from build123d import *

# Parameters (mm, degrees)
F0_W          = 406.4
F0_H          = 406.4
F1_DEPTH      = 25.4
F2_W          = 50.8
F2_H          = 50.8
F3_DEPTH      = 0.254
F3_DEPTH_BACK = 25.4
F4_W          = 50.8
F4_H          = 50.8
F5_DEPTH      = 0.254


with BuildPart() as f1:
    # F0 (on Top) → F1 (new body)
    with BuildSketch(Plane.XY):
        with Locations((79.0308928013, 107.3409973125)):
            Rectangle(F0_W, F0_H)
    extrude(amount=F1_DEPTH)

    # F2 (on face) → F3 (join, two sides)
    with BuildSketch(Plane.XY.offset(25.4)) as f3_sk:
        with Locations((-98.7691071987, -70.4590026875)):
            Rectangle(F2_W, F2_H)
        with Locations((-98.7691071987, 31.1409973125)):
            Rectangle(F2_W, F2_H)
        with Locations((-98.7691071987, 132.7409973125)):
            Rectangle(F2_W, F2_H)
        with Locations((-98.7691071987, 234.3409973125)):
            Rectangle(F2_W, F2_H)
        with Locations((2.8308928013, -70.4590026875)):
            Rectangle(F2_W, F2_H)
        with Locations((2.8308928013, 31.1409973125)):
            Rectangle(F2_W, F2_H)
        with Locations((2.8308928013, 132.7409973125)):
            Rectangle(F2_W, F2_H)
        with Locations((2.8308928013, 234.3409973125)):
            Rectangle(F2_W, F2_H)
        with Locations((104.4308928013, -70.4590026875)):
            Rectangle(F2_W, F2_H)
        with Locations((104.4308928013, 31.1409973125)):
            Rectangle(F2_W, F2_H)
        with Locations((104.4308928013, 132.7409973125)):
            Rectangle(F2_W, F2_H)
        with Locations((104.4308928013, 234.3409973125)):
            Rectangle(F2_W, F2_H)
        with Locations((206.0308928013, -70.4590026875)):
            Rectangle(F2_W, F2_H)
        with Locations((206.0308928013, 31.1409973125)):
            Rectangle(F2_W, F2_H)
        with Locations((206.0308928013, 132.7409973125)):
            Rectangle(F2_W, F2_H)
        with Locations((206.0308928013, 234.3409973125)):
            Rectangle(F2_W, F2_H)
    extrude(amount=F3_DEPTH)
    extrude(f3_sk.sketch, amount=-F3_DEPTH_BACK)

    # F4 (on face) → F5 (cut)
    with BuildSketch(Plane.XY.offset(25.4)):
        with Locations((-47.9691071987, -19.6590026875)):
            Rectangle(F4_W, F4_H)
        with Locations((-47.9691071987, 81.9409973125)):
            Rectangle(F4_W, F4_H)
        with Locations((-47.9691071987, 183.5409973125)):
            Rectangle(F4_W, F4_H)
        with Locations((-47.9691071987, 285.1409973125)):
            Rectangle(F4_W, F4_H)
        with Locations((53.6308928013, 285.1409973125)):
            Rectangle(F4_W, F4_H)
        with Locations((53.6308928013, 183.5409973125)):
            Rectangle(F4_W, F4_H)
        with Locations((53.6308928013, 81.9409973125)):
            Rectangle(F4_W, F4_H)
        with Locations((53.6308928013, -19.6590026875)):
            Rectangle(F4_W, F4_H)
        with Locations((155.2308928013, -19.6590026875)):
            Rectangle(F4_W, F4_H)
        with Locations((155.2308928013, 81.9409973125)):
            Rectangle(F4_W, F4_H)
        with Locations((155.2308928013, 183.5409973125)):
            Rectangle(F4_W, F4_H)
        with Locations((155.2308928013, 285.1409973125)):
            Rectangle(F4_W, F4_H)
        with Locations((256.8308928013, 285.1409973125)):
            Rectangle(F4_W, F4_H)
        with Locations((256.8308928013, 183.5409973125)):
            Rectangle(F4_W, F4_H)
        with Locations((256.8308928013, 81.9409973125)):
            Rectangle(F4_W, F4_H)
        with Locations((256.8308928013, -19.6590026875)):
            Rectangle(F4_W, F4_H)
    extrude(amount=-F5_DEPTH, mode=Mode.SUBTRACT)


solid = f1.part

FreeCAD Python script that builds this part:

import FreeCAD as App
import Part
import Sketcher
Q = App.Units.Quantity

doc = App.newDocument("Part")
body = doc.addObject("PartDesign::Body", "Body")

# Sketch on XY plane
sketch1 = body.newObject("Sketcher::SketchObject", "Sketch")
sketch1.AttachmentSupport = (doc.getObject("XY_Plane"), [""])
sketch1.MapMode = "FlatFace"
sketch1.addGeometry([
    Part.LineSegment(App.Vector(-124.169107, 310.540997, 0), App.Vector(-124.169107, -95.859003, 0)),
    Part.LineSegment(App.Vector(-124.169107, -95.859003, 0), App.Vector(282.230893, -95.859003, 0)),
    Part.LineSegment(App.Vector(282.230893, -95.859003, 0), App.Vector(282.230893, 310.540997, 0)),
    Part.LineSegment(App.Vector(282.230893, 310.540997, 0), App.Vector(-124.169107, 310.540997, 0)),
], False)
sketch1.addConstraint([
    Sketcher.Constraint("Coincident", 0, 2, 1, 1),
    Sketcher.Constraint("Coincident", 1, 2, 2, 1),
    Sketcher.Constraint("Coincident", 2, 2, 3, 1),
    Sketcher.Constraint("Coincident", 3, 2, 0, 1),
    Sketcher.Constraint("Vertical", 0),
    Sketcher.Constraint("Horizontal", 1),
    Sketcher.Constraint("Vertical", 2),
    Sketcher.Constraint("Horizontal", 3),
    Sketcher.Constraint("Equal", 3, 0),
    Sketcher.Constraint("DistanceX", 1, 1, 1, 2, Q("16 in")),
    Sketcher.Constraint("DistanceX", 0, 2, -1, 1, Q("124.169107 mm")),
    Sketcher.Constraint("DistanceY", 0, 2, -1, 1, Q("95.859003 mm")),
])
pad1 = body.newObject("PartDesign::Pad", "Pad")
pad1.Profile = sketch1
pad1.Length = Q("1 in")

# Sketch on XY plane
sketch2 = body.newObject("Sketcher::SketchObject", "Sketch001")
sketch2.AttachmentSupport = (doc.getObject("XY_Plane"), [""])
sketch2.MapMode = "FlatFace"
sketch2.AttachmentOffset = App.Placement(App.Vector(0, 0, 1 * 25.4), App.Rotation())
sketch2.addGeometry([
    Part.LineSegment(App.Vector(-124.169107, -45.059003, 0), App.Vector(-124.169107, -95.859003, 0)),  # 0
    Part.LineSegment(App.Vector(-124.169107, -95.859003, 0), App.Vector(-73.369107, -95.859003, 0)),  # 1
    Part.LineSegment(App.Vector(-73.369107, -95.859003, 0), App.Vector(-73.369107, -45.059003, 0)),  # 2
    Part.LineSegment(App.Vector(-73.369107, -45.059003, 0), App.Vector(-124.169107, -45.059003, 0)),  # 3
    Part.LineSegment(App.Vector(-124.169107, 56.540997, 0), App.Vector(-124.169107, 5.740997, 0)),  # 4
    Part.LineSegment(App.Vector(-124.169107, 5.740997, 0), App.Vector(-73.369107, 5.740997, 0)),  # 5
    Part.LineSegment(App.Vector(-73.369107, 5.740997, 0), App.Vector(-73.369107, 56.540997, 0)),  # 6
    Part.LineSegment(App.Vector(-73.369107, 56.540997, 0), App.Vector(-124.169107, 56.540997, 0)),  # 7
    Part.LineSegment(App.Vector(-124.169107, 158.140997, 0), App.Vector(-124.169107, 107.340997, 0)),  # 8
    Part.LineSegment(App.Vector(-124.169107, 107.340997, 0), App.Vector(-73.369107, 107.340997, 0)),  # 9
    Part.LineSegment(App.Vector(-73.369107, 107.340997, 0), App.Vector(-73.369107, 158.140997, 0)),  # 10
    Part.LineSegment(App.Vector(-73.369107, 158.140997, 0), App.Vector(-124.169107, 158.140997, 0)),  # 11
    Part.LineSegment(App.Vector(-124.169107, 259.740997, 0), App.Vector(-124.169107, 208.940997, 0)),  # 12
    Part.LineSegment(App.Vector(-124.169107, 208.940997, 0), App.Vector(-73.369107, 208.940997, 0)),  # 13
    Part.LineSegment(App.Vector(-73.369107, 208.940997, 0), App.Vector(-73.369107, 259.740997, 0)),  # 14
    Part.LineSegment(App.Vector(-73.369107, 259.740997, 0), App.Vector(-124.169107, 259.740997, 0)),  # 15
    Part.LineSegment(App.Vector(-22.569107, -45.059003, 0), App.Vector(-22.569107, -95.859003, 0)),  # 16
    Part.LineSegment(App.Vector(-22.569107, -95.859003, 0), App.Vector(28.230893, -95.859003, 0)),  # 17
    Part.LineSegment(App.Vector(28.230893, -95.859003, 0), App.Vector(28.230893, -45.059003, 0)),  # 18
    Part.LineSegment(App.Vector(28.230893, -45.059003, 0), App.Vector(-22.569107, -45.059003, 0)),  # 19
    Part.LineSegment(App.Vector(-22.569107, 56.540997, 0), App.Vector(-22.569107, 5.740997, 0)),  # 20
    Part.LineSegment(App.Vector(-22.569107, 5.740997, 0), App.Vector(28.230893, 5.740997, 0)),  # 21
    Part.LineSegment(App.Vector(28.230893, 5.740997, 0), App.Vector(28.230893, 56.540997, 0)),  # 22
    Part.LineSegment(App.Vector(28.230893, 56.540997, 0), App.Vector(-22.569107, 56.540997, 0)),  # 23
    Part.LineSegment(App.Vector(-22.569107, 158.140997, 0), App.Vector(-22.569107, 107.340997, 0)),  # 24
    Part.LineSegment(App.Vector(-22.569107, 107.340997, 0), App.Vector(28.230893, 107.340997, 0)),  # 25
    Part.LineSegment(App.Vector(28.230893, 107.340997, 0), App.Vector(28.230893, 158.140997, 0)),  # 26
    Part.LineSegment(App.Vector(28.230893, 158.140997, 0), App.Vector(-22.569107, 158.140997, 0)),  # 27
    Part.LineSegment(App.Vector(-22.569107, 259.740997, 0), App.Vector(-22.569107, 208.940997, 0)),  # 28
    Part.LineSegment(App.Vector(-22.569107, 208.940997, 0), App.Vector(28.230893, 208.940997, 0)),  # 29
    Part.LineSegment(App.Vector(28.230893, 208.940997, 0), App.Vector(28.230893, 259.740997, 0)),  # 30
    Part.LineSegment(App.Vector(28.230893, 259.740997, 0), App.Vector(-22.569107, 259.740997, 0)),  # 31
    Part.LineSegment(App.Vector(79.030893, -45.059003, 0), App.Vector(79.030893, -95.859003, 0)),  # 32
    Part.LineSegment(App.Vector(79.030893, -95.859003, 0), App.Vector(129.830893, -95.859003, 0)),  # 33
    Part.LineSegment(App.Vector(129.830893, -95.859003, 0), App.Vector(129.830893, -45.059003, 0)),  # 34
    Part.LineSegment(App.Vector(129.830893, -45.059003, 0), App.Vector(79.030893, -45.059003, 0)),  # 35
    Part.LineSegment(App.Vector(79.030893, 56.540997, 0), App.Vector(79.030893, 5.740997, 0)),  # 36
    Part.LineSegment(App.Vector(79.030893, 5.740997, 0), App.Vector(129.830893, 5.740997, 0)),  # 37
    Part.LineSegment(App.Vector(129.830893, 5.740997, 0), App.Vector(129.830893, 56.540997, 0)),  # 38
    Part.LineSegment(App.Vector(129.830893, 56.540997, 0), App.Vector(79.030893, 56.540997, 0)),  # 39
    Part.LineSegment(App.Vector(79.030893, 158.140997, 0), App.Vector(79.030893, 107.340997, 0)),  # 40
    Part.LineSegment(App.Vector(79.030893, 107.340997, 0), App.Vector(129.830893, 107.340997, 0)),  # 41
    Part.LineSegment(App.Vector(129.830893, 107.340997, 0), App.Vector(129.830893, 158.140997, 0)),  # 42
    Part.LineSegment(App.Vector(129.830893, 158.140997, 0), App.Vector(79.030893, 158.140997, 0)),  # 43
    Part.LineSegment(App.Vector(79.030893, 259.740997, 0), App.Vector(79.030893, 208.940997, 0)),  # 44
    Part.LineSegment(App.Vector(79.030893, 208.940997, 0), App.Vector(129.830893, 208.940997, 0)),  # 45
    Part.LineSegment(App.Vector(129.830893, 208.940997, 0), App.Vector(129.830893, 259.740997, 0)),  # 46
    Part.LineSegment(App.Vector(129.830893, 259.740997, 0), App.Vector(79.030893, 259.740997, 0)),  # 47
    Part.LineSegment(App.Vector(180.630893, -45.059003, 0), App.Vector(180.630893, -95.859003, 0)),  # 48
    Part.LineSegment(App.Vector(180.630893, -95.859003, 0), App.Vector(231.430893, -95.859003, 0)),  # 49
    Part.LineSegment(App.Vector(231.430893, -95.859003, 0), App.Vector(231.430893, -45.059003, 0)),  # 50
    Part.LineSegment(App.Vector(231.430893, -45.059003, 0), App.Vector(180.630893, -45.059003, 0)),  # 51
    Part.LineSegment(App.Vector(180.630893, 56.540997, 0), App.Vector(180.630893, 5.740997, 0)),  # 52
    Part.LineSegment(App.Vector(180.630893, 5.740997, 0), App.Vector(231.430893, 5.740997, 0)),  # 53
    Part.LineSegment(App.Vector(231.430893, 5.740997, 0), App.Vector(231.430893, 56.540997, 0)),  # 54
    Part.LineSegment(App.Vector(231.430893, 56.540997, 0), App.Vector(180.630893, 56.540997, 0)),  # 55
    Part.LineSegment(App.Vector(180.630893, 158.140997, 0), App.Vector(180.630893, 107.340997, 0)),  # 56
    Part.LineSegment(App.Vector(180.630893, 107.340997, 0), App.Vector(231.430893, 107.340997, 0)),  # 57
    Part.LineSegment(App.Vector(231.430893, 107.340997, 0), App.Vector(231.430893, 158.140997, 0)),  # 58
    Part.LineSegment(App.Vector(231.430893, 158.140997, 0), App.Vector(180.630893, 158.140997, 0)),  # 59
    Part.LineSegment(App.Vector(180.630893, 259.740997, 0), App.Vector(180.630893, 208.940997, 0)),  # 60
    Part.LineSegment(App.Vector(180.630893, 208.940997, 0), App.Vector(231.430893, 208.940997, 0)),  # 61
    Part.LineSegment(App.Vector(231.430893, 208.940997, 0), App.Vector(231.430893, 259.740997, 0)),  # 62
    Part.LineSegment(App.Vector(231.430893, 259.740997, 0), App.Vector(180.630893, 259.740997, 0)),  # 63
], False)
sketch2.addConstraint([
    Sketcher.Constraint("Coincident", 0, 2, 1, 1),
    Sketcher.Constraint("Coincident", 1, 2, 2, 1),
    Sketcher.Constraint("Coincident", 2, 2, 3, 1),
    Sketcher.Constraint("Coincident", 3, 2, 0, 1),
    Sketcher.Constraint("Coincident", 4, 2, 5, 1),
    Sketcher.Constraint("Coincident", 5, 2, 6, 1),
    Sketcher.Constraint("Coincident", 6, 2, 7, 1),
    Sketcher.Constraint("Coincident", 7, 2, 4, 1),
    Sketcher.Constraint("Coincident", 8, 2, 9, 1),
    Sketcher.Constraint("Coincident", 9, 2, 10, 1),
    Sketcher.Constraint("Coincident", 10, 2, 11, 1),
    Sketcher.Constraint("Coincident", 11, 2, 8, 1),
    Sketcher.Constraint("Coincident", 12, 2, 13, 1),
    Sketcher.Constraint("Coincident", 13, 2, 14, 1),
    Sketcher.Constraint("Coincident", 14, 2, 15, 1),
    Sketcher.Constraint("Coincident", 15, 2, 12, 1),
    Sketcher.Constraint("Coincident", 16, 2, 17, 1),
    Sketcher.Constraint("Coincident", 17, 2, 18, 1),
    Sketcher.Constraint("Coincident", 18, 2, 19, 1),
    Sketcher.Constraint("Coincident", 19, 2, 16, 1),
    Sketcher.Constraint("Coincident", 20, 2, 21, 1),
    Sketcher.Constraint("Coincident", 21, 2, 22, 1),
    Sketcher.Constraint("Coincident", 22, 2, 23, 1),
    Sketcher.Constraint("Coincident", 23, 2, 20, 1),
    Sketcher.Constraint("Coincident", 24, 2, 25, 1),
    Sketcher.Constraint("Coincident", 25, 2, 26, 1),
    Sketcher.Constraint("Coincident", 26, 2, 27, 1),
    Sketcher.Constraint("Coincident", 27, 2, 24, 1),
    Sketcher.Constraint("Coincident", 28, 2, 29, 1),
    Sketcher.Constraint("Coincident", 29, 2, 30, 1),
    Sketcher.Constraint("Coincident", 30, 2, 31, 1),
    Sketcher.Constraint("Coincident", 31, 2, 28, 1),
    Sketcher.Constraint("Coincident", 32, 2, 33, 1),
    Sketcher.Constraint("Coincident", 33, 2, 34, 1),
    Sketcher.Constraint("Coincident", 34, 2, 35, 1),
    Sketcher.Constraint("Coincident", 35, 2, 32, 1),
    Sketcher.Constraint("Coincident", 36, 2, 37, 1),
    Sketcher.Constraint("Coincident", 37, 2, 38, 1),
    Sketcher.Constraint("Coincident", 38, 2, 39, 1),
    Sketcher.Constraint("Coincident", 39, 2, 36, 1),
    Sketcher.Constraint("Coincident", 40, 2, 41, 1),
    Sketcher.Constraint("Coincident", 41, 2, 42, 1),
    Sketcher.Constraint("Coincident", 42, 2, 43, 1),
    Sketcher.Constraint("Coincident", 43, 2, 40, 1),
    Sketcher.Constraint("Coincident", 44, 2, 45, 1),
    Sketcher.Constraint("Coincident", 45, 2, 46, 1),
    Sketcher.Constraint("Coincident", 46, 2, 47, 1),
    Sketcher.Constraint("Coincident", 47, 2, 44, 1),
    Sketcher.Constraint("Coincident", 48, 2, 49, 1),
    Sketcher.Constraint("Coincident", 49, 2, 50, 1),
    Sketcher.Constraint("Coincident", 50, 2, 51, 1),
    Sketcher.Constraint("Coincident", 51, 2, 48, 1),
    Sketcher.Constraint("Coincident", 52, 2, 53, 1),
    Sketcher.Constraint("Coincident", 53, 2, 54, 1),
    Sketcher.Constraint("Coincident", 54, 2, 55, 1),
    Sketcher.Constraint("Coincident", 55, 2, 52, 1),
    Sketcher.Constraint("Coincident", 56, 2, 57, 1),
    Sketcher.Constraint("Coincident", 57, 2, 58, 1),
    Sketcher.Constraint("Coincident", 58, 2, 59, 1),
    Sketcher.Constraint("Coincident", 59, 2, 56, 1),
    Sketcher.Constraint("Coincident", 60, 2, 61, 1),
    Sketcher.Constraint("Coincident", 61, 2, 62, 1),
    Sketcher.Constraint("Coincident", 62, 2, 63, 1),
    Sketcher.Constraint("Coincident", 63, 2, 60, 1),
    Sketcher.Constraint("Vertical", 0),
    Sketcher.Constraint("Horizontal", 1),
    Sketcher.Constraint("Vertical", 2),
    Sketcher.Constraint("Horizontal", 3),
    Sketcher.Constraint("Vertical", 4),
    Sketcher.Constraint("Horizontal", 5),
    Sketcher.Constraint("Vertical", 6),
    Sketcher.Constraint("Horizontal", 7),
    Sketcher.Constraint("Vertical", 8),
    Sketcher.Constraint("Horizontal", 9),
    Sketcher.Constraint("Vertical", 10),
    Sketcher.Constraint("Horizontal", 11),
    Sketcher.Constraint("Vertical", 12),
    Sketcher.Constraint("Horizontal", 13),
    Sketcher.Constraint("Vertical", 14),
    Sketcher.Constraint("Horizontal", 15),
    Sketcher.Constraint("Vertical", 16),
    Sketcher.Constraint("Horizontal", 17),
    Sketcher.Constraint("Vertical", 18),
    Sketcher.Constraint("Horizontal", 19),
    Sketcher.Constraint("Vertical", 20),
    Sketcher.Constraint("Horizontal", 21),
    Sketcher.Constraint("Vertical", 22),
    Sketcher.Constraint("Horizontal", 23),
    Sketcher.Constraint("Vertical", 24),
    Sketcher.Constraint("Horizontal", 25),
    Sketcher.Constraint("Vertical", 26),
    Sketcher.Constraint("Horizontal", 27),
    Sketcher.Constraint("Vertical", 28),
    Sketcher.Constraint("Horizontal", 29),
    Sketcher.Constraint("Vertical", 30),
    Sketcher.Constraint("Horizontal", 31),
    Sketcher.Constraint("Vertical", 32),
    Sketcher.Constraint("Horizontal", 33),
    Sketcher.Constraint("Vertical", 34),
    Sketcher.Constraint("Horizontal", 35),
    Sketcher.Constraint("Vertical", 36),
    Sketcher.Constraint("Horizontal", 37),
    Sketcher.Constraint("Vertical", 38),
    Sketcher.Constraint("Horizontal", 39),
    Sketcher.Constraint("Vertical", 40),
    Sketcher.Constraint("Horizontal", 41),
    Sketcher.Constraint("Vertical", 42),
    Sketcher.Constraint("Horizontal", 43),
    Sketcher.Constraint("Vertical", 44),
    Sketcher.Constraint("Horizontal", 45),
    Sketcher.Constraint("Vertical", 46),
    Sketcher.Constraint("Horizontal", 47),
    Sketcher.Constraint("Vertical", 48),
    Sketcher.Constraint("Horizontal", 49),
    Sketcher.Constraint("Vertical", 50),
    Sketcher.Constraint("Horizontal", 51),
    Sketcher.Constraint("Vertical", 52),
    Sketcher.Constraint("Horizontal", 53),
    Sketcher.Constraint("Vertical", 54),
    Sketcher.Constraint("Horizontal", 55),
    Sketcher.Constraint("Vertical", 56),
    Sketcher.Constraint("Horizontal", 57),
    Sketcher.Constraint("Vertical", 58),
    Sketcher.Constraint("Horizontal", 59),
    Sketcher.Constraint("Vertical", 60),
    Sketcher.Constraint("Horizontal", 61),
    Sketcher.Constraint("Vertical", 62),
    Sketcher.Constraint("Horizontal", 63),
    Sketcher.Constraint("Horizontal", 1, 2, 16, 2),
    Sketcher.Constraint("Horizontal", 3, 2, 18, 2),
    Sketcher.Constraint("Horizontal", 5, 2, 20, 2),
    Sketcher.Constraint("Horizontal", 7, 2, 22, 2),
    Sketcher.Constraint("Horizontal", 9, 2, 24, 2),
    Sketcher.Constraint("Horizontal", 11, 2, 26, 2),
    Sketcher.Constraint("Horizontal", 13, 2, 28, 2),
    Sketcher.Constraint("Horizontal", 15, 2, 30, 2),
    Sketcher.Constraint("Horizontal", 17, 2, 32, 2),
    Sketcher.Constraint("Horizontal", 19, 2, 34, 2),
    Sketcher.Constraint("Horizontal", 21, 2, 36, 2),
    Sketcher.Constraint("Horizontal", 23, 2, 38, 2),
    Sketcher.Constraint("Horizontal", 25, 2, 40, 2),
    Sketcher.Constraint("Horizontal", 27, 2, 42, 2),
    Sketcher.Constraint("Horizontal", 29, 2, 44, 2),
    Sketcher.Constraint("Horizontal", 31, 2, 46, 2),
    Sketcher.Constraint("Horizontal", 33, 2, 48, 2),
    Sketcher.Constraint("Horizontal", 35, 2, 50, 2),
    Sketcher.Constraint("Horizontal", 37, 2, 52, 2),
    Sketcher.Constraint("Horizontal", 39, 2, 54, 2),
    Sketcher.Constraint("Horizontal", 41, 2, 56, 2),
    Sketcher.Constraint("Horizontal", 43, 2, 58, 2),
    Sketcher.Constraint("Horizontal", 45, 2, 60, 2),
    Sketcher.Constraint("Horizontal", 47, 2, 62, 2),
    Sketcher.Constraint("Vertical", 3, 2, 4, 2),
    Sketcher.Constraint("Vertical", 2, 2, 5, 2),
    Sketcher.Constraint("Vertical", 7, 2, 8, 2),
    Sketcher.Constraint("Vertical", 6, 2, 9, 2),
    Sketcher.Constraint("Vertical", 11, 2, 12, 2),
    Sketcher.Constraint("Vertical", 10, 2, 13, 2),
    Sketcher.Constraint("Vertical", 19, 2, 20, 2),
    Sketcher.Constraint("Vertical", 18, 2, 21, 2),
    Sketcher.Constraint("Vertical", 23, 2, 24, 2),
    Sketcher.Constraint("Vertical", 22, 2, 25, 2),
    Sketcher.Constraint("Vertical", 27, 2, 28, 2),
    Sketcher.Constraint("Vertical", 26, 2, 29, 2),
    Sketcher.Constraint("Vertical", 35, 2, 36, 2),
    Sketcher.Constraint("Vertical", 34, 2, 37, 2),
    Sketcher.Constraint("Vertical", 39, 2, 40, 2),
    Sketcher.Constraint("Vertical", 38, 2, 41, 2),
    Sketcher.Constraint("Vertical", 43, 2, 44, 2),
    Sketcher.Constraint("Vertical", 42, 2, 45, 2),
    Sketcher.Constraint("Vertical", 51, 2, 52, 2),
    Sketcher.Constraint("Vertical", 50, 2, 53, 2),
    Sketcher.Constraint("Vertical", 55, 2, 56, 2),
    Sketcher.Constraint("Vertical", 54, 2, 57, 2),
    Sketcher.Constraint("Vertical", 59, 2, 60, 2),
    Sketcher.Constraint("Vertical", 58, 2, 61, 2),
    Sketcher.Constraint("Equal", 15, 17),
    Sketcher.Constraint("Equal", 31, 33),
    Sketcher.Constraint("Equal", 47, 49),
    Sketcher.Constraint("Equal", 63, 0),
    Sketcher.Constraint("Equal", 2, 4),
    Sketcher.Constraint("Equal", 6, 8),
    Sketcher.Constraint("Equal", 10, 12),
    Sketcher.Constraint("DistanceX", 1, 1, 1, 2, Q("2 in")),
    Sketcher.Constraint("DistanceX", 0, 2, -1, 1, Q("124.169107 mm")),
    Sketcher.Constraint("DistanceY", 0, 2, -1, 1, Q("95.859003 mm")),
    Sketcher.Constraint("DistanceY", -1, 1, 4, 2, Q("5.740997 mm")),
    Sketcher.Constraint("DistanceY", -1, 1, 8, 2, Q("107.340997 mm")),
    Sketcher.Constraint("DistanceY", -1, 1, 12, 2, Q("208.940997 mm")),
    Sketcher.Constraint("DistanceX", 16, 2, -1, 1, Q("22.569107 mm")),
    Sketcher.Constraint("DistanceX", -1, 1, 32, 2, Q("79.030893 mm")),
    Sketcher.Constraint("DistanceX", -1, 1, 48, 2, Q("180.630893 mm")),
])
pad2 = body.newObject("PartDesign::Pad", "Pad001")
pad2.Profile = sketch2
pad2.Type = "TwoLengths"
pad2.Length = Q("0.01 in")
pad2.Length2 = Q("1 in")

# Sketch on XY plane
sketch3 = body.newObject("Sketcher::SketchObject", "Sketch002")
sketch3.AttachmentSupport = (doc.getObject("XY_Plane"), [""])
sketch3.MapMode = "FlatFace"
sketch3.AttachmentOffset = App.Placement(App.Vector(0, 0, 1 * 25.4), App.Rotation())
sketch3.addGeometry([
    Part.LineSegment(App.Vector(-73.369107, 5.740997, 0), App.Vector(-73.369107, -45.059003, 0)),  # 0
    Part.LineSegment(App.Vector(-73.369107, -45.059003, 0), App.Vector(-22.569107, -45.059003, 0)),  # 1
    Part.LineSegment(App.Vector(-22.569107, -45.059003, 0), App.Vector(-22.569107, 5.740997, 0)),  # 2
    Part.LineSegment(App.Vector(-22.569107, 5.740997, 0), App.Vector(-73.369107, 5.740997, 0)),  # 3
    Part.LineSegment(App.Vector(-73.369107, 107.340997, 0), App.Vector(-73.369107, 56.540997, 0)),  # 4
    Part.LineSegment(App.Vector(-73.369107, 56.540997, 0), App.Vector(-22.569107, 56.540997, 0)),  # 5
    Part.LineSegment(App.Vector(-22.569107, 56.540997, 0), App.Vector(-22.569107, 107.340997, 0)),  # 6
    Part.LineSegment(App.Vector(-22.569107, 107.340997, 0), App.Vector(-73.369107, 107.340997, 0)),  # 7
    Part.LineSegment(App.Vector(-73.369107, 208.940997, 0), App.Vector(-73.369107, 158.140997, 0)),  # 8
    Part.LineSegment(App.Vector(-73.369107, 158.140997, 0), App.Vector(-22.569107, 158.140997, 0)),  # 9
    Part.LineSegment(App.Vector(-22.569107, 158.140997, 0), App.Vector(-22.569107, 208.940997, 0)),  # 10
    Part.LineSegment(App.Vector(-22.569107, 208.940997, 0), App.Vector(-73.369107, 208.940997, 0)),  # 11
    Part.LineSegment(App.Vector(-73.369107, 310.540997, 0), App.Vector(-73.369107, 259.740997, 0)),  # 12
    Part.LineSegment(App.Vector(-73.369107, 259.740997, 0), App.Vector(-22.569107, 259.740997, 0)),  # 13
    Part.LineSegment(App.Vector(-22.569107, 259.740997, 0), App.Vector(-22.569107, 310.540997, 0)),  # 14
    Part.LineSegment(App.Vector(-22.569107, 310.540997, 0), App.Vector(-73.369107, 310.540997, 0)),  # 15
    Part.LineSegment(App.Vector(28.230893, 310.540997, 0), App.Vector(28.230893, 259.740997, 0)),  # 16
    Part.LineSegment(App.Vector(28.230893, 259.740997, 0), App.Vector(79.030893, 259.740997, 0)),  # 17
    Part.LineSegment(App.Vector(79.030893, 259.740997, 0), App.Vector(79.030893, 310.540997, 0)),  # 18
    Part.LineSegment(App.Vector(79.030893, 310.540997, 0), App.Vector(28.230893, 310.540997, 0)),  # 19
    Part.LineSegment(App.Vector(28.230893, 208.940997, 0), App.Vector(28.230893, 158.140997, 0)),  # 20
    Part.LineSegment(App.Vector(28.230893, 158.140997, 0), App.Vector(79.030893, 158.140997, 0)),  # 21
    Part.LineSegment(App.Vector(79.030893, 158.140997, 0), App.Vector(79.030893, 208.940997, 0)),  # 22
    Part.LineSegment(App.Vector(79.030893, 208.940997, 0), App.Vector(28.230893, 208.940997, 0)),  # 23
    Part.LineSegment(App.Vector(28.230893, 107.340997, 0), App.Vector(28.230893, 56.540997, 0)),  # 24
    Part.LineSegment(App.Vector(28.230893, 56.540997, 0), App.Vector(79.030893, 56.540997, 0)),  # 25
    Part.LineSegment(App.Vector(79.030893, 56.540997, 0), App.Vector(79.030893, 107.340997, 0)),  # 26
    Part.LineSegment(App.Vector(79.030893, 107.340997, 0), App.Vector(28.230893, 107.340997, 0)),  # 27
    Part.LineSegment(App.Vector(28.230893, 5.740997, 0), App.Vector(28.230893, -45.059003, 0)),  # 28
    Part.LineSegment(App.Vector(28.230893, -45.059003, 0), App.Vector(79.030893, -45.059003, 0)),  # 29
    Part.LineSegment(App.Vector(79.030893, -45.059003, 0), App.Vector(79.030893, 5.740997, 0)),  # 30
    Part.LineSegment(App.Vector(79.030893, 5.740997, 0), App.Vector(28.230893, 5.740997, 0)),  # 31
    Part.LineSegment(App.Vector(129.830893, 5.740997, 0), App.Vector(129.830893, -45.059003, 0)),  # 32
    Part.LineSegment(App.Vector(129.830893, -45.059003, 0), App.Vector(180.630893, -45.059003, 0)),  # 33
    Part.LineSegment(App.Vector(180.630893, -45.059003, 0), App.Vector(180.630893, 5.740997, 0)),  # 34
    Part.LineSegment(App.Vector(180.630893, 5.740997, 0), App.Vector(129.830893, 5.740997, 0)),  # 35
    Part.LineSegment(App.Vector(129.830893, 107.340997, 0), App.Vector(129.830893, 56.540997, 0)),  # 36
    Part.LineSegment(App.Vector(129.830893, 56.540997, 0), App.Vector(180.630893, 56.540997, 0)),  # 37
    Part.LineSegment(App.Vector(180.630893, 56.540997, 0), App.Vector(180.630893, 107.340997, 0)),  # 38
    Part.LineSegment(App.Vector(180.630893, 107.340997, 0), App.Vector(129.830893, 107.340997, 0)),  # 39
    Part.LineSegment(App.Vector(129.830893, 208.940997, 0), App.Vector(129.830893, 158.140997, 0)),  # 40
    Part.LineSegment(App.Vector(129.830893, 158.140997, 0), App.Vector(180.630893, 158.140997, 0)),  # 41
    Part.LineSegment(App.Vector(180.630893, 158.140997, 0), App.Vector(180.630893, 208.940997, 0)),  # 42
    Part.LineSegment(App.Vector(180.630893, 208.940997, 0), App.Vector(129.830893, 208.940997, 0)),  # 43
    Part.LineSegment(App.Vector(129.830893, 310.540997, 0), App.Vector(129.830893, 259.740997, 0)),  # 44
    Part.LineSegment(App.Vector(129.830893, 259.740997, 0), App.Vector(180.630893, 259.740997, 0)),  # 45
    Part.LineSegment(App.Vector(180.630893, 259.740997, 0), App.Vector(180.630893, 310.540997, 0)),  # 46
    Part.LineSegment(App.Vector(180.630893, 310.540997, 0), App.Vector(129.830893, 310.540997, 0)),  # 47
    Part.LineSegment(App.Vector(231.430893, 310.540997, 0), App.Vector(231.430893, 259.740997, 0)),  # 48
    Part.LineSegment(App.Vector(231.430893, 259.740997, 0), App.Vector(282.230893, 259.740997, 0)),  # 49
    Part.LineSegment(App.Vector(282.230893, 259.740997, 0), App.Vector(282.230893, 310.540997, 0)),  # 50
    Part.LineSegment(App.Vector(282.230893, 310.540997, 0), App.Vector(231.430893, 310.540997, 0)),  # 51
    Part.LineSegment(App.Vector(231.430893, 208.940997, 0), App.Vector(231.430893, 158.140997, 0)),  # 52
    Part.LineSegment(App.Vector(231.430893, 158.140997, 0), App.Vector(282.230893, 158.140997, 0)),  # 53
    Part.LineSegment(App.Vector(282.230893, 158.140997, 0), App.Vector(282.230893, 208.940997, 0)),  # 54
    Part.LineSegment(App.Vector(282.230893, 208.940997, 0), App.Vector(231.430893, 208.940997, 0)),  # 55
    Part.LineSegment(App.Vector(231.430893, 107.340997, 0), App.Vector(231.430893, 56.540997, 0)),  # 56
    Part.LineSegment(App.Vector(231.430893, 56.540997, 0), App.Vector(282.230893, 56.540997, 0)),  # 57
    Part.LineSegment(App.Vector(282.230893, 56.540997, 0), App.Vector(282.230893, 107.340997, 0)),  # 58
    Part.LineSegment(App.Vector(282.230893, 107.340997, 0), App.Vector(231.430893, 107.340997, 0)),  # 59
    Part.LineSegment(App.Vector(231.430893, 5.740997, 0), App.Vector(231.430893, -45.059003, 0)),  # 60
    Part.LineSegment(App.Vector(231.430893, -45.059003, 0), App.Vector(282.230893, -45.059003, 0)),  # 61
    Part.LineSegment(App.Vector(282.230893, -45.059003, 0), App.Vector(282.230893, 5.740997, 0)),  # 62
    Part.LineSegment(App.Vector(282.230893, 5.740997, 0), App.Vector(231.430893, 5.740997, 0)),  # 63
], False)
sketch3.addConstraint([
    Sketcher.Constraint("Coincident", 0, 2, 1, 1),
    Sketcher.Constraint("Coincident", 1, 2, 2, 1),
    Sketcher.Constraint("Coincident", 2, 2, 3, 1),
    Sketcher.Constraint("Coincident", 3, 2, 0, 1),
    Sketcher.Constraint("Coincident", 4, 2, 5, 1),
    Sketcher.Constraint("Coincident", 5, 2, 6, 1),
    Sketcher.Constraint("Coincident", 6, 2, 7, 1),
    Sketcher.Constraint("Coincident", 7, 2, 4, 1),
    Sketcher.Constraint("Coincident", 8, 2, 9, 1),
    Sketcher.Constraint("Coincident", 9, 2, 10, 1),
    Sketcher.Constraint("Coincident", 10, 2, 11, 1),
    Sketcher.Constraint("Coincident", 11, 2, 8, 1),
    Sketcher.Constraint("Coincident", 12, 2, 13, 1),
    Sketcher.Constraint("Coincident", 13, 2, 14, 1),
    Sketcher.Constraint("Coincident", 14, 2, 15, 1),
    Sketcher.Constraint("Coincident", 15, 2, 12, 1),
    Sketcher.Constraint("Coincident", 16, 2, 17, 1),
    Sketcher.Constraint("Coincident", 17, 2, 18, 1),
    Sketcher.Constraint("Coincident", 18, 2, 19, 1),
    Sketcher.Constraint("Coincident", 19, 2, 16, 1),
    Sketcher.Constraint("Coincident", 20, 2, 21, 1),
    Sketcher.Constraint("Coincident", 21, 2, 22, 1),
    Sketcher.Constraint("Coincident", 22, 2, 23, 1),
    Sketcher.Constraint("Coincident", 23, 2, 20, 1),
    Sketcher.Constraint("Coincident", 24, 2, 25, 1),
    Sketcher.Constraint("Coincident", 25, 2, 26, 1),
    Sketcher.Constraint("Coincident", 26, 2, 27, 1),
    Sketcher.Constraint("Coincident", 27, 2, 24, 1),
    Sketcher.Constraint("Coincident", 28, 2, 29, 1),
    Sketcher.Constraint("Coincident", 29, 2, 30, 1),
    Sketcher.Constraint("Coincident", 30, 2, 31, 1),
    Sketcher.Constraint("Coincident", 31, 2, 28, 1),
    Sketcher.Constraint("Coincident", 32, 2, 33, 1),
    Sketcher.Constraint("Coincident", 33, 2, 34, 1),
    Sketcher.Constraint("Coincident", 34, 2, 35, 1),
    Sketcher.Constraint("Coincident", 35, 2, 32, 1),
    Sketcher.Constraint("Coincident", 36, 2, 37, 1),
    Sketcher.Constraint("Coincident", 37, 2, 38, 1),
    Sketcher.Constraint("Coincident", 38, 2, 39, 1),
    Sketcher.Constraint("Coincident", 39, 2, 36, 1),
    Sketcher.Constraint("Coincident", 40, 2, 41, 1),
    Sketcher.Constraint("Coincident", 41, 2, 42, 1),
    Sketcher.Constraint("Coincident", 42, 2, 43, 1),
    Sketcher.Constraint("Coincident", 43, 2, 40, 1),
    Sketcher.Constraint("Coincident", 44, 2, 45, 1),
    Sketcher.Constraint("Coincident", 45, 2, 46, 1),
    Sketcher.Constraint("Coincident", 46, 2, 47, 1),
    Sketcher.Constraint("Coincident", 47, 2, 44, 1),
    Sketcher.Constraint("Coincident", 48, 2, 49, 1),
    Sketcher.Constraint("Coincident", 49, 2, 50, 1),
    Sketcher.Constraint("Coincident", 50, 2, 51, 1),
    Sketcher.Constraint("Coincident", 51, 2, 48, 1),
    Sketcher.Constraint("Coincident", 52, 2, 53, 1),
    Sketcher.Constraint("Coincident", 53, 2, 54, 1),
    Sketcher.Constraint("Coincident", 54, 2, 55, 1),
    Sketcher.Constraint("Coincident", 55, 2, 52, 1),
    Sketcher.Constraint("Coincident", 56, 2, 57, 1),
    Sketcher.Constraint("Coincident", 57, 2, 58, 1),
    Sketcher.Constraint("Coincident", 58, 2, 59, 1),
    Sketcher.Constraint("Coincident", 59, 2, 56, 1),
    Sketcher.Constraint("Coincident", 60, 2, 61, 1),
    Sketcher.Constraint("Coincident", 61, 2, 62, 1),
    Sketcher.Constraint("Coincident", 62, 2, 63, 1),
    Sketcher.Constraint("Coincident", 63, 2, 60, 1),
    Sketcher.Constraint("Vertical", 0),
    Sketcher.Constraint("Horizontal", 1),
    Sketcher.Constraint("Vertical", 2),
    Sketcher.Constraint("Horizontal", 3),
    Sketcher.Constraint("Vertical", 4),
    Sketcher.Constraint("Horizontal", 5),
    Sketcher.Constraint("Vertical", 6),
    Sketcher.Constraint("Horizontal", 7),
    Sketcher.Constraint("Vertical", 8),
    Sketcher.Constraint("Horizontal", 9),
    Sketcher.Constraint("Vertical", 10),
    Sketcher.Constraint("Horizontal", 11),
    Sketcher.Constraint("Vertical", 12),
    Sketcher.Constraint("Horizontal", 13),
    Sketcher.Constraint("Vertical", 14),
    Sketcher.Constraint("Horizontal", 15),
    Sketcher.Constraint("Vertical", 16),
    Sketcher.Constraint("Horizontal", 17),
    Sketcher.Constraint("Vertical", 18),
    Sketcher.Constraint("Horizontal", 19),
    Sketcher.Constraint("Vertical", 20),
    Sketcher.Constraint("Horizontal", 21),
    Sketcher.Constraint("Vertical", 22),
    Sketcher.Constraint("Horizontal", 23),
    Sketcher.Constraint("Vertical", 24),
    Sketcher.Constraint("Horizontal", 25),
    Sketcher.Constraint("Vertical", 26),
    Sketcher.Constraint("Horizontal", 27),
    Sketcher.Constraint("Vertical", 28),
    Sketcher.Constraint("Horizontal", 29),
    Sketcher.Constraint("Vertical", 30),
    Sketcher.Constraint("Horizontal", 31),
    Sketcher.Constraint("Vertical", 32),
    Sketcher.Constraint("Horizontal", 33),
    Sketcher.Constraint("Vertical", 34),
    Sketcher.Constraint("Horizontal", 35),
    Sketcher.Constraint("Vertical", 36),
    Sketcher.Constraint("Horizontal", 37),
    Sketcher.Constraint("Vertical", 38),
    Sketcher.Constraint("Horizontal", 39),
    Sketcher.Constraint("Vertical", 40),
    Sketcher.Constraint("Horizontal", 41),
    Sketcher.Constraint("Vertical", 42),
    Sketcher.Constraint("Horizontal", 43),
    Sketcher.Constraint("Vertical", 44),
    Sketcher.Constraint("Horizontal", 45),
    Sketcher.Constraint("Vertical", 46),
    Sketcher.Constraint("Horizontal", 47),
    Sketcher.Constraint("Vertical", 48),
    Sketcher.Constraint("Horizontal", 49),
    Sketcher.Constraint("Vertical", 50),
    Sketcher.Constraint("Horizontal", 51),
    Sketcher.Constraint("Vertical", 52),
    Sketcher.Constraint("Horizontal", 53),
    Sketcher.Constraint("Vertical", 54),
    Sketcher.Constraint("Horizontal", 55),
    Sketcher.Constraint("Vertical", 56),
    Sketcher.Constraint("Horizontal", 57),
    Sketcher.Constraint("Vertical", 58),
    Sketcher.Constraint("Horizontal", 59),
    Sketcher.Constraint("Vertical", 60),
    Sketcher.Constraint("Horizontal", 61),
    Sketcher.Constraint("Vertical", 62),
    Sketcher.Constraint("Horizontal", 63),
    Sketcher.Constraint("Horizontal", 13, 2, 16, 2),
    Sketcher.Constraint("Horizontal", 15, 2, 18, 2),
    Sketcher.Constraint("Horizontal", 9, 2, 20, 2),
    Sketcher.Constraint("Horizontal", 11, 2, 22, 2),
    Sketcher.Constraint("Horizontal", 5, 2, 24, 2),
    Sketcher.Constraint("Horizontal", 7, 2, 26, 2),
    Sketcher.Constraint("Horizontal", 1, 2, 28, 2),
    Sketcher.Constraint("Horizontal", 3, 2, 30, 2),
    Sketcher.Constraint("Horizontal", 29, 2, 32, 2),
    Sketcher.Constraint("Horizontal", 31, 2, 34, 2),
    Sketcher.Constraint("Horizontal", 25, 2, 36, 2),
    Sketcher.Constraint("Horizontal", 27, 2, 38, 2),
    Sketcher.Constraint("Horizontal", 21, 2, 40, 2),
    Sketcher.Constraint("Horizontal", 23, 2, 42, 2),
    Sketcher.Constraint("Horizontal", 17, 2, 44, 2),
    Sketcher.Constraint("Horizontal", 19, 2, 46, 2),
    Sketcher.Constraint("Horizontal", 45, 2, 48, 2),
    Sketcher.Constraint("Horizontal", 47, 2, 50, 2),
    Sketcher.Constraint("Horizontal", 41, 2, 52, 2),
    Sketcher.Constraint("Horizontal", 43, 2, 54, 2),
    Sketcher.Constraint("Horizontal", 37, 2, 56, 2),
    Sketcher.Constraint("Horizontal", 39, 2, 58, 2),
    Sketcher.Constraint("Horizontal", 33, 2, 60, 2),
    Sketcher.Constraint("Horizontal", 35, 2, 62, 2),
    Sketcher.Constraint("Vertical", 3, 2, 4, 2),
    Sketcher.Constraint("Vertical", 2, 2, 5, 2),
    Sketcher.Constraint("Vertical", 7, 2, 8, 2),
    Sketcher.Constraint("Vertical", 6, 2, 9, 2),
    Sketcher.Constraint("Vertical", 11, 2, 12, 2),
    Sketcher.Constraint("Vertical", 10, 2, 13, 2),
    Sketcher.Constraint("Vertical", 19, 2, 20, 2),
    Sketcher.Constraint("Vertical", 18, 2, 21, 2),
    Sketcher.Constraint("Vertical", 23, 2, 24, 2),
    Sketcher.Constraint("Vertical", 22, 2, 25, 2),
    Sketcher.Constraint("Vertical", 27, 2, 28, 2),
    Sketcher.Constraint("Vertical", 26, 2, 29, 2),
    Sketcher.Constraint("Vertical", 35, 2, 36, 2),
    Sketcher.Constraint("Vertical", 34, 2, 37, 2),
    Sketcher.Constraint("Vertical", 39, 2, 40, 2),
    Sketcher.Constraint("Vertical", 38, 2, 41, 2),
    Sketcher.Constraint("Vertical", 43, 2, 44, 2),
    Sketcher.Constraint("Vertical", 42, 2, 45, 2),
    Sketcher.Constraint("Vertical", 51, 2, 52, 2),
    Sketcher.Constraint("Vertical", 50, 2, 53, 2),
    Sketcher.Constraint("Vertical", 55, 2, 56, 2),
    Sketcher.Constraint("Vertical", 54, 2, 57, 2),
    Sketcher.Constraint("Vertical", 59, 2, 60, 2),
    Sketcher.Constraint("Vertical", 58, 2, 61, 2),
    Sketcher.Constraint("Equal", 15, 17),
    Sketcher.Constraint("Equal", 31, 33),
    Sketcher.Constraint("Equal", 47, 49),
    Sketcher.Constraint("Equal", 63, 0),
    Sketcher.Constraint("Equal", 2, 4),
    Sketcher.Constraint("Equal", 6, 8),
    Sketcher.Constraint("Equal", 10, 12),
    Sketcher.Constraint("DistanceX", 1, 1, 1, 2, Q("2 in")),
    Sketcher.Constraint("DistanceX", 0, 2, -1, 1, Q("73.369107 mm")),
    Sketcher.Constraint("DistanceY", 0, 2, -1, 1, Q("45.059003 mm")),
    Sketcher.Constraint("DistanceY", -1, 1, 4, 2, Q("56.540997 mm")),
    Sketcher.Constraint("DistanceY", -1, 1, 8, 2, Q("158.140997 mm")),
    Sketcher.Constraint("DistanceY", -1, 1, 12, 2, Q("259.740997 mm")),
    Sketcher.Constraint("DistanceX", -1, 1, 16, 2, Q("28.230893 mm")),
    Sketcher.Constraint("DistanceX", -1, 1, 32, 2, Q("129.830893 mm")),
    Sketcher.Constraint("DistanceX", -1, 1, 48, 2, Q("231.430893 mm")),
])
pocket1 = body.newObject("PartDesign::Pocket", "Pocket")
pocket1.Profile = sketch3
pocket1.Length = Q("0.01 in")

doc.recompute()
